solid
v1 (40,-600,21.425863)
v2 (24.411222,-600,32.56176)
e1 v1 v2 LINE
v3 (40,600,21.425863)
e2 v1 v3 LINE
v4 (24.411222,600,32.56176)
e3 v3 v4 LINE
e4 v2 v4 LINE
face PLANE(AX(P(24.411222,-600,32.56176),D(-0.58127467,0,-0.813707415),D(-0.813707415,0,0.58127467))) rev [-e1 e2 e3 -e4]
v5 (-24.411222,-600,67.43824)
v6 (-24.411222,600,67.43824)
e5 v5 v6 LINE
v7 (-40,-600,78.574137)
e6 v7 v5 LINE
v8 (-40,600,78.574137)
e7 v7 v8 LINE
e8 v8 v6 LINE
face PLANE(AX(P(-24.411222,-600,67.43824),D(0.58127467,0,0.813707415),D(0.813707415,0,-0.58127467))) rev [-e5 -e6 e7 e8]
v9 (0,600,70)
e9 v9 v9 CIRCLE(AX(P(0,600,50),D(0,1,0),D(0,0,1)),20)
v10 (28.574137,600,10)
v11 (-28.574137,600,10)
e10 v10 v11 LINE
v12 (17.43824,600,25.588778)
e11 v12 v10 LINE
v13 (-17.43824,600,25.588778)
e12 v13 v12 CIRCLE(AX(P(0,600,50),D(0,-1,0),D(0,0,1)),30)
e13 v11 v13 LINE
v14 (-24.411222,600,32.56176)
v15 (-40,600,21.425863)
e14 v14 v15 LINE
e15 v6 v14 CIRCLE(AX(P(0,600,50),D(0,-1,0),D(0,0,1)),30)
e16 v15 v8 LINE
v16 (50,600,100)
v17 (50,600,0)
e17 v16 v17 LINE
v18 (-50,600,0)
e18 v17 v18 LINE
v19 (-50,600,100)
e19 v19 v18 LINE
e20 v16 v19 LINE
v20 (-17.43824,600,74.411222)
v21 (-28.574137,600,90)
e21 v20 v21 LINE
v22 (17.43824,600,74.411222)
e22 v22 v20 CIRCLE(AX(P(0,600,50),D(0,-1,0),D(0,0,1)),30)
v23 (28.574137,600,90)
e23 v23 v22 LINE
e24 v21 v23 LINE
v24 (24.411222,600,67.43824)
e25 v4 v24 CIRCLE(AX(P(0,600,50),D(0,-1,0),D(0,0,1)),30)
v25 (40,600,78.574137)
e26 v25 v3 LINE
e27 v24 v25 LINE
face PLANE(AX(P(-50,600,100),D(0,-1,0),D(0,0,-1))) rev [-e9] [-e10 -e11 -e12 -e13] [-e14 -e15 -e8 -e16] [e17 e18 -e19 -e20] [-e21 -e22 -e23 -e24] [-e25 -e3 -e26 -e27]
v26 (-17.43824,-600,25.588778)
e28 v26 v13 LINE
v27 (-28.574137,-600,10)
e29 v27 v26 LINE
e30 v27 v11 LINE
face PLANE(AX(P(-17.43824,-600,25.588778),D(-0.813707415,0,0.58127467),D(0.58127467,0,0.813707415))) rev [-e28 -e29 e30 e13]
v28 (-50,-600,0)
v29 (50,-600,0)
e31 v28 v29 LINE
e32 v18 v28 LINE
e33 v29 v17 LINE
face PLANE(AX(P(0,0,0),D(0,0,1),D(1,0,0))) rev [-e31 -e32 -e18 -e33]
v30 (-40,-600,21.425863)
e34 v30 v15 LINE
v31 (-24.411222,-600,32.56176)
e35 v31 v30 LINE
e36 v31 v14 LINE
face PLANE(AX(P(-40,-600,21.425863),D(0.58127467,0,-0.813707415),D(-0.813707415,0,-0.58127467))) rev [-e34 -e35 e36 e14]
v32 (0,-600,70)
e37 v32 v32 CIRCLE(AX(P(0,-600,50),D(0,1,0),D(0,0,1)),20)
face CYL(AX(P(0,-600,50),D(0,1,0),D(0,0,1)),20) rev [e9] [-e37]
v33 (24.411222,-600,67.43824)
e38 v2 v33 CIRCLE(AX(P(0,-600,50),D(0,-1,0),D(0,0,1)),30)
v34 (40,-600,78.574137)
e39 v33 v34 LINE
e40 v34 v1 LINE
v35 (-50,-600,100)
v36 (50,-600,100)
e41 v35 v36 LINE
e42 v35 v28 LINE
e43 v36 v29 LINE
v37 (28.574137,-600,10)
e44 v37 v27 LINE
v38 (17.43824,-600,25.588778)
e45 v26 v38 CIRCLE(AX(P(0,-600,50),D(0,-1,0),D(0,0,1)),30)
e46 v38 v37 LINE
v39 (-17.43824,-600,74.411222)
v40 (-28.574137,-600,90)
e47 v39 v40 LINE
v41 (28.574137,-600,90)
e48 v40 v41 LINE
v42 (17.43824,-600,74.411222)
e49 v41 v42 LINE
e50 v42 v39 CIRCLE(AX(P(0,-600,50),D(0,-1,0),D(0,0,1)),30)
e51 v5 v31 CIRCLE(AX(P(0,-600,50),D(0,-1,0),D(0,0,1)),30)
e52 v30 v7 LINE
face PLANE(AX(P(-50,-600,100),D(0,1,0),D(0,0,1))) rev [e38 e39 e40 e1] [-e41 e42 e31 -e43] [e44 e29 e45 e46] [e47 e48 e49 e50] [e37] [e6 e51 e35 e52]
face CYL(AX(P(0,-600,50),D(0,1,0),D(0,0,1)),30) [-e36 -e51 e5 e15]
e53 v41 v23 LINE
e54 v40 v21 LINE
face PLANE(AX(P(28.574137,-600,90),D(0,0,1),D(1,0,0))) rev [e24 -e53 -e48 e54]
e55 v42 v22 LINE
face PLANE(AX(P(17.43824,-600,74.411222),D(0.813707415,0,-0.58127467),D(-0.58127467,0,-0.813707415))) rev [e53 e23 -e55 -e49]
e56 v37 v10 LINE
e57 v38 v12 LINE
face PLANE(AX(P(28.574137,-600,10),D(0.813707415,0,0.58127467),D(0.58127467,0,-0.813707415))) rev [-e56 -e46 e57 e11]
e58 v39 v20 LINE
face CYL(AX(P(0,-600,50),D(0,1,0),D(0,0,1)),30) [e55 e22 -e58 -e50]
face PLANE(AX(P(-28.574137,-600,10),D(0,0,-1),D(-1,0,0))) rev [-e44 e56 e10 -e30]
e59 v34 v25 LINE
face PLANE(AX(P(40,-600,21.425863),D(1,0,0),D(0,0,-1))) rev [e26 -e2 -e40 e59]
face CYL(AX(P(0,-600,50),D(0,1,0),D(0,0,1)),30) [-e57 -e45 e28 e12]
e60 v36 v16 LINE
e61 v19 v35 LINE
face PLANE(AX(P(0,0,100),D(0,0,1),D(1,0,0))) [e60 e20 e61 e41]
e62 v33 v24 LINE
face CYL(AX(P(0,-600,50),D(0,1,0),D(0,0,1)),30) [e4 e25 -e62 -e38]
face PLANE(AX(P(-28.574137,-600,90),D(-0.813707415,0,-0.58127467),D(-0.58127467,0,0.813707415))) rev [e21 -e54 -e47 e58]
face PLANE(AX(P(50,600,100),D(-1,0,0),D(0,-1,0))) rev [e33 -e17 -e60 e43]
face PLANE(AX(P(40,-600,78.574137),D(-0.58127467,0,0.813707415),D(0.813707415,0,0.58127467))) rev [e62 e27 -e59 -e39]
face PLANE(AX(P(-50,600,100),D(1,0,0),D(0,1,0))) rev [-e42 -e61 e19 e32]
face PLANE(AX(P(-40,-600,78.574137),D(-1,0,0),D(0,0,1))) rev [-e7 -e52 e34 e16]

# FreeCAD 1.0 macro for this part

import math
import FreeCAD as App
import Part
import Sketcher
from FreeCAD import Vector
Q = App.Units.Quantity


def add_polygon(sketch, points):
    """Adds a closed chain of lines whose ends are joined by coincident constraints."""
    first, n = sketch.GeometryCount, len(points)
    for a, b in zip(points, points[1:] + points[:1]):
        sketch.addGeometry(Part.LineSegment(App.Vector(*a, 0), App.Vector(*b, 0)), False)
    for i in range(n):
        sketch.addConstraint(Sketcher.Constraint("Coincident", first + i, 2, first + (i + 1) % n, 1))

doc = App.newDocument("Part")
body = doc.addObject("PartDesign::Body", "Body")

sketch1 = body.newObject("Sketcher::SketchObject", "Sketch")
sketch1.AttachmentSupport = (doc.getObject("XY_Plane"), [""])
sketch1.MapMode = "FlatFace"
add_polygon(sketch1, [(-50, 600), (-50, -600), (50, -600), (50, 600)])
sketch1.addConstraint([
    Sketcher.Constraint("Vertical", 0),
    Sketcher.Constraint("Horizontal", 1),
    Sketcher.Constraint("Vertical", 2),
    Sketcher.Constraint("Horizontal", 3),
    Sketcher.Constraint("Symmetric", 0, 2, 2, 2, -1, 1),
    Sketcher.Constraint("DistanceX", 1, 1, 1, 2, Q("100 mm")),
    Sketcher.Constraint("DistanceY", 0, 2, 0, 1, Q("1200 mm")),
])
pad1 = body.newObject("PartDesign::Pad", "Pad")
pad1.Profile = sketch1
pad1.Length = 100

sketch2 = body.newObject("Sketcher::SketchObject", "Sketch001")
sketch2.AttachmentSupport = (doc.getObject("XZ_Plane"), [""])
sketch2.MapMode = "FlatFace"
sketch2.AttachmentOffset = App.Placement(Vector(0, 0, -600), App.Rotation())
sketch2.addGeometry([
    Part.Circle(Vector(0, 50, 0), Vector(0, 0, 1), 20),
    Part.LineSegment(Vector(-40, 79, 0), Vector(-24, 67, 0)),
    Part.ArcOfCircle(Part.Circle(Vector(0, 50, 0), Vector(0, 0, 1), 30), math.radians(144), math.radians(216)),
    Part.LineSegment(Vector(-24, 33, 0), Vector(-40, 21, 0)),
    Part.LineSegment(Vector(-40, 21, 0), Vector(-40, 79, 0)),
    Part.LineSegment(Vector(-29, 10, 0), Vector(-17, 26, 0)),
    Part.ArcOfCircle(Part.Circle(Vector(0, 50, 0), Vector(0, 0, 1), 30), math.radians(-126), math.radians(-54)),
    Part.LineSegment(Vector(17, 26, 0), Vector(29, 10, 0)),
    Part.LineSegment(Vector(29, 10, 0), Vector(-29, 10, 0)),
    Part.LineSegment(Vector(40, 21, 0), Vector(24, 33, 0)),
    Part.ArcOfCircle(Part.Circle(Vector(0, 50, 0), Vector(0, 0, 1), 30), math.radians(-36), math.radians(36)),
    Part.LineSegment(Vector(24, 67, 0), Vector(40, 79, 0)),
    Part.LineSegment(Vector(40, 79, 0), Vector(40, 21, 0)),
    Part.LineSegment(Vector(29, 90, 0), Vector(17, 74, 0)),
    Part.ArcOfCircle(Part.Circle(Vector(0, 50, 0), Vector(0, 0, 1), 30), math.radians(54), math.radians(126)),
    Part.LineSegment(Vector(-17, 74, 0), Vector(-29, 90, 0)),
    Part.LineSegment(Vector(-29, 90, 0), Vector(29, 90, 0)),
], False)
sketch2.addConstraint([
    Sketcher.Constraint("Coincident", 1, 2, 2, 1),
    Sketcher.Constraint("Coincident", 2, 2, 3, 1),
    Sketcher.Constraint("Coincident", 3, 2, 4, 1),
    Sketcher.Constraint("Coincident", 4, 2, 1, 1),
    Sketcher.Constraint("Coincident", 5, 2, 6, 1),
    Sketcher.Constraint("Coincident", 6, 2, 7, 1),
    Sketcher.Constraint("Coincident", 7, 2, 8, 1),
    Sketcher.Constraint("Coincident", 8, 2, 5, 1),
    Sketcher.Constraint("Coincident", 9, 2, 10, 1),
    Sketcher.Constraint("Coincident", 10, 2, 11, 1),
    Sketcher.Constraint("Coincident", 11, 2, 12, 1),
    Sketcher.Constraint("Coincident", 12, 2, 9, 1),
    Sketcher.Constraint("Coincident", 13, 2, 14, 1),
    Sketcher.Constraint("Coincident", 14, 2, 15, 1),
    Sketcher.Constraint("Coincident", 15, 2, 16, 1),
    Sketcher.Constraint("Coincident", 16, 2, 13, 1),
    Sketcher.Constraint("Vertical", 4),
    Sketcher.Constraint("Horizontal", 8),
    Sketcher.Constraint("Vertical", 12),
    Sketcher.Constraint("Horizontal", 16),
    Sketcher.Constraint("Coincident", 2, 3, 0, 3),
    Sketcher.Constraint("Coincident", 6, 3, 0, 3),
    Sketcher.Constraint("Coincident", 10, 3, 0, 3),
    Sketcher.Constraint("Coincident", 14, 3, 0, 3),
    Sketcher.Constraint("Equal", 2, 6),
    Sketcher.Constraint("Equal", 6, 10),
    Sketcher.Constraint("Equal", 10, 14),
    Sketcher.Constraint("Symmetric", 5, 2, 6, 2, -2),
    Sketcher.Constraint("Symmetric", 4, 2, 11, 2, -2),
    Sketcher.Constraint("Perpendicular", 1, 5),
    Sketcher.Constraint("Perpendicular", 3, 7),
    Sketcher.Constraint("Perpendicular", 5, 9),
    Sketcher.Constraint("Perpendicular", 7, 11),
    Sketcher.Constraint("Perpendicular", 9, 13),
    Sketcher.Constraint("Perpendicular", 11, 15),
    Sketcher.Constraint("Horizontal", 2, 2, 9, 2),
    Sketcher.Constraint("Horizontal", 1, 2, 10, 2),
    Sketcher.Constraint("Horizontal", 13, 2, 14, 2),
    Sketcher.Constraint("Vertical", 1, 2, 2, 2),
    Sketcher.Constraint("Vertical", 6, 2, 13, 2),
    Sketcher.Constraint("Vertical", 8, 2, 15, 2),
    Sketcher.Constraint("Equal", 16, 4),
    Sketcher.Constraint("Equal", 3, 5),
    Sketcher.Constraint("Diameter", 0, Q("40 mm")),
    Sketcher.Constraint("Radius", 2, Q("30 mm")),
    Sketcher.Constraint("DistanceY", -1, 1, 0, 3, Q("50 mm")),
    Sketcher.Constraint("DistanceX", 3, 2, -1, 1, Q("40 mm")),
    Sketcher.Constraint("Distance", 1, Q("19.157718 mm")),
    Sketcher.Constraint("DistanceY", -1, 1, 1, 2, Q("67.43824 mm")),
])
pocket1 = body.newObject("PartDesign::Pocket", "Pocket")
pocket1.Profile = sketch2
pocket1.Type = "ThroughAll"
pocket1.Reversed = True

doc.recompute()
